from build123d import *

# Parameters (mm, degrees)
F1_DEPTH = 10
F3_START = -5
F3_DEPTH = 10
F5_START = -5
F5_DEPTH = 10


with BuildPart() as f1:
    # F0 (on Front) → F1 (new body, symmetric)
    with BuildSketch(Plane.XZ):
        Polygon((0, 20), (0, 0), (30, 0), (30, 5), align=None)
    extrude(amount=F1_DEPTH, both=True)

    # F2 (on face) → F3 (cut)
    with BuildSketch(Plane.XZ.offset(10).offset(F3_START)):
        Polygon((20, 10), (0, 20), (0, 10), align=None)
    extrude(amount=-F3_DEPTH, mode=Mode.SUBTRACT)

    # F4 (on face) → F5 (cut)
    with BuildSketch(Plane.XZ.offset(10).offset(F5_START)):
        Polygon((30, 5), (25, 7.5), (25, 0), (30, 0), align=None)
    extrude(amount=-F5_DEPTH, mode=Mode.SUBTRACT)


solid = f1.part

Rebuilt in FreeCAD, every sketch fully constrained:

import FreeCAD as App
import Part
import Sketcher
Q = App.Units.Quantity

doc = App.newDocument("Part")
params = doc.addObject("Spreadsheet::Sheet", "Params")
for row, (alias, value) in enumerate([
    ("sketch1_width", "30 mm"),
    ("sketch1_height", "20 mm"),
    ("sketch1_height2", "5 mm"),
    ("pad1_length", "20 mm"),
    ("sketch2_width", "20 mm"),
    ("sketch2_height", "10 mm"),
    ("pocket1_length", "10 mm"),
    ("sketch3_width", "5 mm"),
    ("sketch3_height", "7.5 mm"),
    ("pocket2_length", "10 mm"),
], start=1):
    params.set(f"A{row}", alias)
    params.set(f"B{row}", "=" + value)
    params.setAlias(f"B{row}", alias)

body = doc.addObject("PartDesign::Body", "Body")

sketch1 = doc.addObject("Sketcher::SketchObject", "Sketch")
body.addObject(sketch1)
sketch1.AttachmentSupport = (doc.XZ_Plane, [""])
sketch1.MapMode = "FlatFace"
sketch1.addGeometry([
    Part.LineSegment(App.Vector(0, 20, 0), App.Vector(0, 0, 0)),
    Part.LineSegment(App.Vector(0, 0, 0), App.Vector(30, 0, 0)),
    Part.LineSegment(App.Vector(30, 0, 0), App.Vector(30, 5, 0)),
    Part.LineSegment(App.Vector(30, 5, 0), App.Vector(0, 20, 0)),
], False)
sketch1.addConstraint([
    Sketcher.Constraint("Coincident", 0, 2, 1, 1),
    Sketcher.Constraint("Coincident", 1, 2, 2, 1),
    Sketcher.Constraint("Coincident", 2, 2, 3, 1),
    Sketcher.Constraint("Coincident", 3, 2, 0, 1),
    Sketcher.Constraint("Vertical", 0),
    Sketcher.Constraint("Horizontal", 1),
    Sketcher.Constraint("Vertical", 2),
    Sketcher.Constraint("Coincident", 0, 2, -1, 1),
    Sketcher.Constraint("DistanceX", 1, 1, 1, 2, Q("30 mm")),
    Sketcher.Constraint("DistanceY", 0, 2, 0, 1, Q("20 mm")),
    Sketcher.Constraint("DistanceY", 2, 1, 2, 2, Q("5 mm")),
])
sketch1.setExpression("Constraints[8]", "Params.sketch1_width")
sketch1.setExpression("Constraints[9]", "Params.sketch1_height")
sketch1.setExpression("Constraints[10]", "Params.sketch1_height2")
pad1 = doc.addObject("PartDesign::Pad", "Pad")
body.addObject(pad1)
pad1.Profile = sketch1
pad1.setExpression("Length", "Params.pad1_length")
pad1.Midplane = True

sketch2 = doc.addObject("Sketcher::SketchObject", "Sketch001")
body.addObject(sketch2)
sketch2.AttachmentSupport = (doc.XZ_Plane, [""])
sketch2.MapMode = "FlatFace"
sketch2.AttachmentOffset = App.Placement(App.Vector(0, 0, 5), App.Rotation())
sketch2.addGeometry([
    Part.LineSegment(App.Vector(20, 10, 0), App.Vector(0, 20, 0)),
    Part.LineSegment(App.Vector(0, 20, 0), App.Vector(0, 10, 0)),
    Part.LineSegment(App.Vector(0, 10, 0), App.Vector(20, 10, 0)),
], False)
sketch2.addConstraint([
    Sketcher.Constraint("Coincident", 0, 2, 1, 1),
    Sketcher.Constraint("Coincident", 1, 2, 2, 1),
    Sketcher.Constraint("Coincident", 2, 2, 0, 1),
    Sketcher.Constraint("Vertical", 1),
    Sketcher.Constraint("Horizontal", 2),
    Sketcher.Constraint("PointOnObject", 0, 2, -2),
    Sketcher.Constraint("DistanceX", 2, 1, 2, 2, Q("20 mm")),
    Sketcher.Constraint("DistanceY", 1, 2, 1, 1, Q("10 mm")),
    Sketcher.Constraint("DistanceY", -1, 1, 0, 2, Q("20 mm")),
])
sketch2.setExpression("Constraints[6]", "Params.sketch2_width")
sketch2.setExpression("Constraints[7]", "Params.sketch2_height")
pocket1 = doc.addObject("PartDesign::Pocket", "Pocket")
body.addObject(pocket1)
pocket1.Profile = sketch2
pocket1.setExpression("Length", "Params.pocket1_length")

sketch3 = doc.addObject("Sketcher::SketchObject", "Sketch002")
body.addObject(sketch3)
sketch3.AttachmentSupport = (doc.XZ_Plane, [""])
sketch3.MapMode = "FlatFace"
sketch3.AttachmentOffset = App.Placement(App.Vector(0, 0, 5), App.Rotation())
sketch3.addGeometry([
    Part.LineSegment(App.Vector(30, 5, 0), App.Vector(25, 7.5, 0)),
    Part.LineSegment(App.Vector(25, 7.5, 0), App.Vector(25, 0, 0)),
    Part.LineSegment(App.Vector(25, 0, 0), App.Vector(30, 0, 0)),
    Part.LineSegment(App.Vector(30, 0, 0), App.Vector(30, 5, 0)),
], False)
sketch3.addConstraint([
    Sketcher.Constraint("Coincident", 0, 2, 1, 1),
    Sketcher.Constraint("Coincident", 1, 2, 2, 1),
    Sketcher.Constraint("Coincident", 2, 2, 3, 1),
    Sketcher.Constraint("Coincident", 3, 2, 0, 1),
    Sketcher.Constraint("Vertical", 1),
    Sketcher.Constraint("Horizontal", 2),
    Sketcher.Constraint("Vertical", 3),
    Sketcher.Constraint("PointOnObject", 1, 2, -1),
    Sketcher.Constraint("Equal", 2, 3),
    Sketcher.Constraint("DistanceX", 2, 1, 2, 2, Q("5 mm")),
    Sketcher.Constraint("DistanceY", 1, 2, 1, 1, Q("7.5 mm")),
    Sketcher.Constraint("DistanceX", -1, 1, 0, 2, Q("25 mm")),
])
sketch3.setExpression("Constraints[9]", "Params.sketch3_width")
sketch3.setExpression("Constraints[10]", "Params.sketch3_height")
pocket2 = doc.addObject("PartDesign::Pocket", "Pocket001")
body.addObject(pocket2)
pocket2.Profile = sketch3
pocket2.setExpression("Length", "Params.pocket2_length")

doc.recompute()
